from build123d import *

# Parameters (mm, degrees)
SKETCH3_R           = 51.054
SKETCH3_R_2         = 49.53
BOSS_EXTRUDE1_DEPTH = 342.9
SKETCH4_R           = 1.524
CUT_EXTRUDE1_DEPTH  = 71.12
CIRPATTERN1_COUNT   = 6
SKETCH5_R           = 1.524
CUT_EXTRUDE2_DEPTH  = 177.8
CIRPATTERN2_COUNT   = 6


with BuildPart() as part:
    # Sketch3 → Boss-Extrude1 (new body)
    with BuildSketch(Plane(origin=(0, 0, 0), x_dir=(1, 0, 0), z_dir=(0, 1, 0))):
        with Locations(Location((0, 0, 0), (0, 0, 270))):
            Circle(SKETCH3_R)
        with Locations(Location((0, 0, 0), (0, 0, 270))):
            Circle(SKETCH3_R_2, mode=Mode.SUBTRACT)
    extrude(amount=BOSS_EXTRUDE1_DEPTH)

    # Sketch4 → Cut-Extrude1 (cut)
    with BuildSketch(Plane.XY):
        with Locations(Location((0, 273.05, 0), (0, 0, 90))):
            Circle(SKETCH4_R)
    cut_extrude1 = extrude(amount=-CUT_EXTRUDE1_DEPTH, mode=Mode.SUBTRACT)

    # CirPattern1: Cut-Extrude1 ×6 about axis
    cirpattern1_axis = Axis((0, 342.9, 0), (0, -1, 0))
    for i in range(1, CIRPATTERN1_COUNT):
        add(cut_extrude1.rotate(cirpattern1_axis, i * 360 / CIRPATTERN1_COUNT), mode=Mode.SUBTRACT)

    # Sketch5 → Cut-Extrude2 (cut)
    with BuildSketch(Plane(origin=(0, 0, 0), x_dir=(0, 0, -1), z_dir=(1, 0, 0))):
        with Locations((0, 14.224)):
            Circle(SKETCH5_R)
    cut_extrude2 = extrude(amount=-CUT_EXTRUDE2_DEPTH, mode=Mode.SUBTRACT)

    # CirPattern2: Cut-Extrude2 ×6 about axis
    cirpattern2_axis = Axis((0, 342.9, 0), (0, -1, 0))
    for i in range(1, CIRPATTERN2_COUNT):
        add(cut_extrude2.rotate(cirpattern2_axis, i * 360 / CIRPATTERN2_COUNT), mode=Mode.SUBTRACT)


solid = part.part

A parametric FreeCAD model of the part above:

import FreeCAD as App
import Part
import Sketcher

V = App.Vector
Q = App.Units.Quantity

doc = App.newDocument("Part")
body = doc.addObject("PartDesign::Body", "Body")

# Sketch on XZ plane
sketch1 = body.newObject("Sketcher::SketchObject", "Sketch")
sketch1.AttachmentSupport = (doc.getObject("XZ_Plane"), [""])
sketch1.MapMode = "FlatFace"
sketch1.addGeometry([
    Part.Circle(V(0, 0, 0), V(0, 0, 1), 51),
    Part.Circle(V(0, 0, 0), V(0, 0, 1), 50),
], False)
sketch1.addConstraint([
    Sketcher.Constraint("Coincident", 0, 3, -1, 1),
    Sketcher.Constraint("Coincident", 1, 3, -1, 1),
    Sketcher.Constraint("Diameter", 1, Q("3.9 in")),
    Sketcher.Constraint("Diameter", 0, Q("4.02 in")),
])
pad1 = body.newObject("PartDesign::Pad", "Pad")
pad1.Profile = sketch1
pad1.Length = Q("13.5 in")
pad1.Reversed = True

# Sketch on XY plane
sketch2 = body.newObject("Sketcher::SketchObject", "Sketch001")
sketch2.AttachmentSupport = (doc.getObject("XY_Plane"), [""])
sketch2.MapMode = "FlatFace"
sketch2.addGeometry(Part.Circle(V(0, 273.1, 0), V(0, 0, 1), 1.5), False)
sketch2.addConstraint([
    Sketcher.Constraint("PointOnObject", 0, 3, -2),
    Sketcher.Constraint("Diameter", 0, Q("0.12 in")),
    Sketcher.Constraint("DistanceY", -1, 1, 0, 3, Q("10.75 in")),
])
pocket1 = body.newObject("PartDesign::Pocket", "Pocket")
pocket1.Profile = sketch2
pocket1.Length = Q("2.8 in")
doc.recompute()

polarpattern = body.newObject("PartDesign::PolarPattern", "PolarPattern")
polarpattern.Originals = [pocket1]
polarpattern.Axis = (doc.getObject("Y_Axis"), [""])
polarpattern.Angle = 360
polarpattern.Occurrences = 6
body.Tip = polarpattern

# Sketch on YZ plane
sketch3 = body.newObject("Sketcher::SketchObject", "Sketch002")
sketch3.AttachmentSupport = (doc.getObject("YZ_Plane"), [""])
sketch3.MapMode = "FlatFace"
sketch3.addGeometry(Part.Circle(V(14.2, 0, 0), V(0, 0, 1), 1.5), False)
sketch3.addConstraint([
    Sketcher.Constraint("PointOnObject", 0, 3, -1),
    Sketcher.Constraint("Diameter", 0, Q("0.12 in")),
    Sketcher.Constraint("DistanceX", -1, 1, 0, 3, Q("0.56 in")),
])
pocket2 = body.newObject("PartDesign::Pocket", "Pocket001")
pocket2.Profile = sketch3
pocket2.Length = Q("7 in")
doc.recompute()

polarpattern2 = body.newObject("PartDesign::PolarPattern", "PolarPattern001")
polarpattern2.Originals = [pocket2]
polarpattern2.Axis = (doc.getObject("Y_Axis"), [""])
polarpattern2.Angle = 360
polarpattern2.Occurrences = 6
body.Tip = polarpattern2

doc.recompute()
